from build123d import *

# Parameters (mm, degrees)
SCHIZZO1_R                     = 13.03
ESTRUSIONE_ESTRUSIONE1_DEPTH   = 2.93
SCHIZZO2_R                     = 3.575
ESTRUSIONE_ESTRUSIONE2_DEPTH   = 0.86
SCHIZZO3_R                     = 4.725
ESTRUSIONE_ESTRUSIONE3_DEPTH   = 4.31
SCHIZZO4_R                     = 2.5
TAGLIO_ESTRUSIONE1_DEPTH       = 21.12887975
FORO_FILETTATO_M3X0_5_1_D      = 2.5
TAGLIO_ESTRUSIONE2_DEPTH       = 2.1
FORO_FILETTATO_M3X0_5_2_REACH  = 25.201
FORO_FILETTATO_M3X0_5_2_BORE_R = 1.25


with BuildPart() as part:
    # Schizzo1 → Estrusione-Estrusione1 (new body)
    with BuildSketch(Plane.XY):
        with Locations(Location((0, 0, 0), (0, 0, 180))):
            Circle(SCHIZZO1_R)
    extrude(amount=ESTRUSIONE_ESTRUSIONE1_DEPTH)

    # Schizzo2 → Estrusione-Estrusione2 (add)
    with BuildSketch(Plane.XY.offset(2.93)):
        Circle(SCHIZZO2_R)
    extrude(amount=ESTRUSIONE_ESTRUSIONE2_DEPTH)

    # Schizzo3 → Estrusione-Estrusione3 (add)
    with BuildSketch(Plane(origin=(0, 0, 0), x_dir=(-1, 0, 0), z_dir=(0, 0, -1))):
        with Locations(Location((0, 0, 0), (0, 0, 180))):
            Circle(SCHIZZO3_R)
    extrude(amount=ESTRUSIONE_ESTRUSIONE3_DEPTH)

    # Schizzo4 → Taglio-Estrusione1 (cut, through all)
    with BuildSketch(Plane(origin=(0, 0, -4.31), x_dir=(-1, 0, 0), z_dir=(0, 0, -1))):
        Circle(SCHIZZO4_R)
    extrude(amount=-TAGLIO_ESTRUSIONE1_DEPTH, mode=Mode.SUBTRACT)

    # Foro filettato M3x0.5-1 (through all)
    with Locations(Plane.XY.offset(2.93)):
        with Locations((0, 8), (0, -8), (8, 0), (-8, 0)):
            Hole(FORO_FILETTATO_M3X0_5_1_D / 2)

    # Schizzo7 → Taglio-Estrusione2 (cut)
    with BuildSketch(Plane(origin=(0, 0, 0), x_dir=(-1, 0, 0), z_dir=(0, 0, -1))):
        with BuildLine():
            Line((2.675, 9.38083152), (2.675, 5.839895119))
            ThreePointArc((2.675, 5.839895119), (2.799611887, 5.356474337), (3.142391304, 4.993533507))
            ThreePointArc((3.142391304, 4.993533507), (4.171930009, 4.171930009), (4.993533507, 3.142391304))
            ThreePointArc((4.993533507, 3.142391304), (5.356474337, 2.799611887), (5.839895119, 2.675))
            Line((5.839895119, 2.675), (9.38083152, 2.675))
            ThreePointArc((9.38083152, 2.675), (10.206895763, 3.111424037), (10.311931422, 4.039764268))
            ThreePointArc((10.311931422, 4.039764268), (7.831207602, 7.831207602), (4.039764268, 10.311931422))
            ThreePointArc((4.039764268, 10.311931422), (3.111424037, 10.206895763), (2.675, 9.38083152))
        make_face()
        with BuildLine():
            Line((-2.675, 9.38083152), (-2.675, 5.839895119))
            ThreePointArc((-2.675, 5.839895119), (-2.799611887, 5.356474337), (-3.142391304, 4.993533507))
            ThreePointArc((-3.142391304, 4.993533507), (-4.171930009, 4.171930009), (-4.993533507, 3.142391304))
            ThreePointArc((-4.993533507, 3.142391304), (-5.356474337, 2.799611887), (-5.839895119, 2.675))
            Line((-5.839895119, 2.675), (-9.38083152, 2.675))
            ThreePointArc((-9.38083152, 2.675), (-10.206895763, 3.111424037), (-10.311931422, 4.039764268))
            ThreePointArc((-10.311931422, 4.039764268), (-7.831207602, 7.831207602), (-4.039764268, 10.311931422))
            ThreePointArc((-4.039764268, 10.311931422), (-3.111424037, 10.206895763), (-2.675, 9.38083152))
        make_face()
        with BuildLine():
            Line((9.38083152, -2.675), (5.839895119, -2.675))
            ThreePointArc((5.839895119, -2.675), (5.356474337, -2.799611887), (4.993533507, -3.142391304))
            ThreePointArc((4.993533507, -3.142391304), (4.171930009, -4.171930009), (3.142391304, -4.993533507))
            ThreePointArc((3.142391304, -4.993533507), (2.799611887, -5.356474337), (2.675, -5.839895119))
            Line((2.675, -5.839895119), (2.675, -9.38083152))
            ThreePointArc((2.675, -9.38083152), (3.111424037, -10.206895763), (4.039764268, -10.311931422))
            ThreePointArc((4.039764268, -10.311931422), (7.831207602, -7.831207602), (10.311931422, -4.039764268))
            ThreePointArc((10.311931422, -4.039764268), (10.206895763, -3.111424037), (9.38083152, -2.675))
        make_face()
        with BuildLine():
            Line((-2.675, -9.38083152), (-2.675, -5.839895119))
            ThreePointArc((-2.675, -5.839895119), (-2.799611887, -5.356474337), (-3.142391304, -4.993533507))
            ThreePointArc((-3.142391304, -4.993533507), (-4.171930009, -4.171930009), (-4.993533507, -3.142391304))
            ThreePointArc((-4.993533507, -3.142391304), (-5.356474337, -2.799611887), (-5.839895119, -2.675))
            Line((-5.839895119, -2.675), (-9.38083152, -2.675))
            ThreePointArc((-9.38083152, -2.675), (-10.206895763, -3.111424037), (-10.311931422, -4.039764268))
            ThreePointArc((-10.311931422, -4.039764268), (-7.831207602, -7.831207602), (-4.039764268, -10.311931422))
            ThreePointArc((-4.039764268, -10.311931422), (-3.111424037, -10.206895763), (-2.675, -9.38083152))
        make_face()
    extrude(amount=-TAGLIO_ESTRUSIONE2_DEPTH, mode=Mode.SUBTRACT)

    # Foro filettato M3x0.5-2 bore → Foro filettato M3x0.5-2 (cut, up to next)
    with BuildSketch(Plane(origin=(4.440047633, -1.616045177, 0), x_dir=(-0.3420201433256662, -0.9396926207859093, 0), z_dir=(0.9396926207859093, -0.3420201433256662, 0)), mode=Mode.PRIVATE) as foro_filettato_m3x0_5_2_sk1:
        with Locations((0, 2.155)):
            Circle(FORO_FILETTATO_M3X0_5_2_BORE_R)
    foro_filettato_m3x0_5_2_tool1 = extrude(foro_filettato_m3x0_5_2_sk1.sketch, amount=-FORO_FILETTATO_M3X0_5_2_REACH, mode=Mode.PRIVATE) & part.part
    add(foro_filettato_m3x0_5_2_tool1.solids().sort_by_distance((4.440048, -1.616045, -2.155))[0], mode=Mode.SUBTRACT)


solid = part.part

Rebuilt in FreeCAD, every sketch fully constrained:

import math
import FreeCAD as App
import Part
import Sketcher

V = App.Vector
Q = App.Units.Quantity

doc = App.newDocument("Part")
body = doc.addObject("PartDesign::Body", "Body")

# Sketch on XY plane
sketch1 = doc.addObject("Sketcher::SketchObject", "Sketch")
body.addObject(sketch1)
sketch1.AttachmentSupport = (doc.XY_Plane, [""])
sketch1.MapMode = "FlatFace"
sketch1.addGeometry(Part.Circle(V(0, 0, 0), V(0, 0, 1), 13.03), False)
sketch1.addConstraint([
    Sketcher.Constraint("Coincident", 0, 3, -1, 1),
    Sketcher.Constraint("Diameter", 0, Q("26.06 mm")),
])
pad1 = doc.addObject("PartDesign::Pad", "Pad")
body.addObject(pad1)
pad1.Profile = sketch1
pad1.Length = 2.93

# Sketch on XY plane
sketch2 = doc.addObject("Sketcher::SketchObject", "Sketch001")
body.addObject(sketch2)
sketch2.AttachmentSupport = (doc.XY_Plane, [""])
sketch2.MapMode = "FlatFace"
sketch2.AttachmentOffset = App.Placement(V(0, 0, 2.93), App.Rotation())
sketch2.addGeometry(Part.Circle(V(0, 0, 0), V(0, 0, 1), 3.575), False)
sketch2.addConstraint([
    Sketcher.Constraint("Coincident", 0, 3, -1, 1),
    Sketcher.Constraint("Diameter", 0, Q("7.15 mm")),
])
pad2 = doc.addObject("PartDesign::Pad", "Pad001")
body.addObject(pad2)
pad2.Profile = sketch2
pad2.Length = 0.86

# Sketch on XY plane
sketch3 = doc.addObject("Sketcher::SketchObject", "Sketch002")
body.addObject(sketch3)
sketch3.AttachmentSupport = (doc.XY_Plane, [""])
sketch3.MapMode = "FlatFace"
sketch3.addGeometry(Part.Circle(V(0, 0, 0), V(0, 0, 1), 4.725), False)
sketch3.addConstraint([
    Sketcher.Constraint("Coincident", 0, 3, -1, 1),
    Sketcher.Constraint("Diameter", 0, Q("9.45 mm")),
])
pad3 = doc.addObject("PartDesign::Pad", "Pad002")
body.addObject(pad3)
pad3.Profile = sketch3
pad3.Length = 4.31
pad3.Reversed = True

# Sketch on XY plane
sketch4 = doc.addObject("Sketcher::SketchObject", "Sketch003")
body.addObject(sketch4)
sketch4.AttachmentSupport = (doc.XY_Plane, [""])
sketch4.MapMode = "FlatFace"
sketch4.AttachmentOffset = App.Placement(V(0, 0, -4.31), App.Rotation())
sketch4.addGeometry(Part.Circle(V(0, 0, 0), V(0, 0, 1), 2.5), False)
sketch4.addConstraint([
    Sketcher.Constraint("Coincident", 0, 3, -1, 1),
    Sketcher.Constraint("Diameter", 0, Q("5 mm")),
])
pocket1 = doc.addObject("PartDesign::Pocket", "Pocket")
body.addObject(pocket1)
pocket1.Profile = sketch4
pocket1.Type = "ThroughAll"
pocket1.Reversed = True

# Sketch on XY plane
sketch5 = doc.addObject("Sketcher::SketchObject", "Sketch004")
body.addObject(sketch5)
sketch5.AttachmentSupport = (doc.XY_Plane, [""])
sketch5.MapMode = "FlatFace"
sketch5.AttachmentOffset = App.Placement(V(0, 0, 2.93), App.Rotation())
sketch5.addGeometry([
    Part.Circle(V(0, 8, 0), V(0, 0, 1), 1.25),
    Part.Circle(V(0, -8, 0), V(0, 0, 1), 1.25),
    Part.Circle(V(8, 0, 0), V(0, 0, 1), 1.25),
    Part.Circle(V(-8, 0, 0), V(0, 0, 1), 1.25),
], False)
sketch5.addConstraint([
    Sketcher.Constraint("Equal", 0, 1),
    Sketcher.Constraint("Equal", 1, 2),
    Sketcher.Constraint("Equal", 2, 3),
    Sketcher.Constraint("Symmetric", 0, 3, 1, 3, -1, 1),
    Sketcher.Constraint("Symmetric", 2, 3, 3, 3, -1, 1),
    Sketcher.Constraint("PointOnObject", 0, 3, -2),
    Sketcher.Constraint("PointOnObject", 2, 3, -1),
    Sketcher.Constraint("Diameter", 0, Q("2.5 mm")),
    Sketcher.Constraint("DistanceY", -1, 1, 0, 3, Q("8 mm")),
    Sketcher.Constraint("DistanceX", -1, 1, 2, 3, Q("8 mm")),
])
doc.recompute()
hole = doc.addObject("PartDesign::Hole", "Hole")
body.addObject(hole)
hole.Profile = sketch5
hole.ThreadType = "None"
hole.Diameter = 2.5
hole.DepthType = "ThroughAll"

# Sketch on XY plane
sketch6 = doc.addObject("Sketcher::SketchObject", "Sketch005")
body.addObject(sketch6)
sketch6.AttachmentSupport = (doc.XY_Plane, [""])
sketch6.MapMode = "FlatFace"
sketch6.addGeometry([
    Part.LineSegment(V(-2.675, 9.380832, 0), V(-2.675, 5.839895, 0)),  # 0
    Part.ArcOfCircle(Part.Circle(V(-3.675, 5.839895, 0), V(0, 0, 1), 1), math.radians(-57.818116), math.radians(0)),  # 1
    Part.ArcOfCircle(Part.Circle(V(0, 0, 0), V(0, 0, 1), 5.9), math.radians(122.181884), math.radians(147.818116)),  # 2
    Part.ArcOfCircle(Part.Circle(V(-5.839895, 3.675, 0), V(0, 0, 1), 1), math.radians(-90), math.radians(-32.181884)),  # 3
    Part.LineSegment(V(-5.839895, 2.675, 0), V(-9.380832, 2.675, 0)),  # 4
    Part.ArcOfCircle(Part.Circle(V(-9.380832, 3.675, 0), V(0, 0, 1), 1), math.radians(158.606924), math.radians(270)),  # 5
    Part.ArcOfCircle(Part.Circle(V(0, 0, 0), V(0, 0, 1), 11.075), math.radians(111.393076), math.radians(158.606924)),  # 6
    Part.ArcOfCircle(Part.Circle(V(-3.675, 9.380832, 0), V(0, 0, 1), 1), math.radians(0), math.radians(111.393076)),  # 7
    Part.LineSegment(V(2.675, 5.839895, 0), V(2.675, 9.380832, 0)),  # 8
    Part.ArcOfCircle(Part.Circle(V(3.675, 9.380832, 0), V(0, 0, 1), 1), math.radians(68.606924), math.radians(180)),  # 9
    Part.ArcOfCircle(Part.Circle(V(0, 0, 0), V(0, 0, 1), 11.075), math.radians(21.393076), math.radians(68.606924)),  # 10
    Part.ArcOfCircle(Part.Circle(V(9.380832, 3.675, 0), V(0, 0, 1), 1), math.radians(-90), math.radians(21.393076)),  # 11
    Part.LineSegment(V(9.380832, 2.675, 0), V(5.839895, 2.675, 0)),  # 12
    Part.ArcOfCircle(Part.Circle(V(5.839895, 3.675, 0), V(0, 0, 1), 1), math.radians(-147.818116), math.radians(-90)),  # 13
    Part.ArcOfCircle(Part.Circle(V(0, 0, 0), V(0, 0, 1), 5.9), math.radians(32.181884), math.radians(57.818116)),  # 14
    Part.ArcOfCircle(Part.Circle(V(3.675, 5.839895, 0), V(0, 0, 1), 1), math.radians(180), math.radians(237.818116)),  # 15
    Part.LineSegment(V(-9.380832, -2.675, 0), V(-5.839895, -2.675, 0)),  # 16
    Part.ArcOfCircle(Part.Circle(V(-5.839895, -3.675, 0), V(0, 0, 1), 1), math.radians(32.181884), math.radians(90)),  # 17
    Part.ArcOfCircle(Part.Circle(V(0, 0, 0), V(0, 0, 1), 5.9), math.radians(-147.818116), math.radians(-122.181884)),  # 18
    Part.ArcOfCircle(Part.Circle(V(-3.675, -5.839895, 0), V(0, 0, 1), 1), math.radians(0), math.radians(57.818116)),  # 19
    Part.LineSegment(V(-2.675, -5.839895, 0), V(-2.675, -9.380832, 0)),  # 20
    Part.ArcOfCircle(Part.Circle(V(-3.675, -9.380832, 0), V(0, 0, 1), 1), math.radians(-111.393076), math.radians(0)),  # 21
    Part.ArcOfCircle(Part.Circle(V(0, 0, 0), V(0, 0, 1), 11.075), math.radians(-158.606924), math.radians(-111.393076)),  # 22
    Part.ArcOfCircle(Part.Circle(V(-9.380832, -3.675, 0), V(0, 0, 1), 1), math.radians(90), math.radians(201.393076)),  # 23
    Part.LineSegment(V(2.675, -9.380832, 0), V(2.675, -5.839895, 0)),  # 24
    Part.ArcOfCircle(Part.Circle(V(3.675, -5.839895, 0), V(0, 0, 1), 1), math.radians(122.181884), math.radians(180)),  # 25
    Part.ArcOfCircle(Part.Circle(V(0, 0, 0), V(0, 0, 1), 5.9), math.radians(-57.818116), math.radians(-32.181884)),  # 26
    Part.ArcOfCircle(Part.Circle(V(5.839895, -3.675, 0), V(0, 0, 1), 1), math.radians(90), math.radians(147.818116)),  # 27
    Part.LineSegment(V(5.839895, -2.675, 0), V(9.380832, -2.675, 0)),  # 28
    Part.ArcOfCircle(Part.Circle(V(9.380832, -3.675, 0), V(0, 0, 1), 1), math.radians(-21.393076), math.radians(90)),  # 29
    Part.ArcOfCircle(Part.Circle(V(0, 0, 0), V(0, 0, 1), 11.075), math.radians(-68.606924), math.radians(-21.393076)),  # 30
    Part.ArcOfCircle(Part.Circle(V(3.675, -9.380832, 0), V(0, 0, 1), 1), math.radians(180), math.radians(291.393076)),  # 31
], False)
sketch6.addConstraint([
    Sketcher.Constraint("Tangent", 0, 2, 1, 2),
    Sketcher.Constraint("Tangent", 1, 1, 2, 1),
    Sketcher.Constraint("Tangent", 2, 2, 3, 2),
    Sketcher.Constraint("Tangent", 3, 1, 4, 1),
    Sketcher.Constraint("Tangent", 4, 2, 5, 2),
    Sketcher.Constraint("Tangent", 5, 1, 6, 2),
    Sketcher.Constraint("Tangent", 6, 1, 7, 2),
    Sketcher.Constraint("Tangent", 7, 1, 0, 1),
    Sketcher.Constraint("Tangent", 8, 2, 9, 2),
    Sketcher.Constraint("Tangent", 9, 1, 10, 2),
    Sketcher.Constraint("Tangent", 10, 1, 11, 2),
    Sketcher.Constraint("Tangent", 11, 1, 12, 1),
    Sketcher.Constraint("Tangent", 12, 2, 13, 2),
    Sketcher.Constraint("Tangent", 13, 1, 14, 1),
    Sketcher.Constraint("Tangent", 14, 2, 15, 2),
    Sketcher.Constraint("Tangent", 15, 1, 8, 1),
    Sketcher.Constraint("Tangent", 16, 2, 17, 2),
    Sketcher.Constraint("Tangent", 17, 1, 18, 1),
    Sketcher.Constraint("Tangent", 18, 2, 19, 2),
    Sketcher.Constraint("Tangent", 19, 1, 20, 1),
    Sketcher.Constraint("Tangent", 20, 2, 21, 2),
    Sketcher.Constraint("Tangent", 21, 1, 22, 2),
    Sketcher.Constraint("Tangent", 22, 1, 23, 2),
    Sketcher.Constraint("Tangent", 23, 1, 16, 1),
    Sketcher.Constraint("Tangent", 24, 2, 25, 2),
    Sketcher.Constraint("Tangent", 25, 1, 26, 1),
    Sketcher.Constraint("Tangent", 26, 2, 27, 2),
    Sketcher.Constraint("Tangent", 27, 1, 28, 1),
    Sketcher.Constraint("Tangent", 28, 2, 29, 2),
    Sketcher.Constraint("Tangent", 29, 1, 30, 2),
    Sketcher.Constraint("Tangent", 30, 1, 31, 2),
    Sketcher.Constraint("Tangent", 31, 1, 24, 1),
    Sketcher.Constraint("Vertical", 0),
    Sketcher.Constraint("Horizontal", 4),
    Sketcher.Constraint("Vertical", 8),
    Sketcher.Constraint("Horizontal", 12),
    Sketcher.Constraint("Horizontal", 16),
    Sketcher.Constraint("Vertical", 20),
    Sketcher.Constraint("Vertical", 24),
    Sketcher.Constraint("Horizontal", 28),
    Sketcher.Constraint("Coincident", 2, 3, -1, 1),
    Sketcher.Constraint("Coincident", 6, 3, -1, 1),
    Sketcher.Constraint("Coincident", 10, 3, -1, 1),
    Sketcher.Constraint("Coincident", 14, 3, -1, 1),
    Sketcher.Constraint("Coincident", 18, 3, -1, 1),
    Sketcher.Constraint("Coincident", 22, 3, -1, 1),
    Sketcher.Constraint("Coincident", 26, 3, -1, 1),
    Sketcher.Constraint("Coincident", 30, 3, -1, 1),
    Sketcher.Constraint("Equal", 1, 3),
    Sketcher.Constraint("Equal", 3, 5),
    Sketcher.Constraint("Equal", 5, 7),
    Sketcher.Constraint("Equal", 7, 9),
    Sketcher.Constraint("Equal", 6, 10),
    Sketcher.Constraint("Equal", 9, 11),
    Sketcher.Constraint("Equal", 11, 13),
    Sketcher.Constraint("Equal", 2, 14),
    Sketcher.Constraint("Equal", 13, 15),
    Sketcher.Constraint("Equal", 15, 17),
    Sketcher.Constraint("Equal", 14, 18),
    Sketcher.Constraint("Equal", 17, 19),
    Sketcher.Constraint("Equal", 19, 21),
    Sketcher.Constraint("Equal", 10, 22),
    Sketcher.Constraint("Equal", 21, 23),
    Sketcher.Constraint("Equal", 23, 25),
    Sketcher.Constraint("Equal", 18, 26),
    Sketcher.Constraint("Equal", 25, 27),
    Sketcher.Constraint("Equal", 27, 29),
    Sketcher.Constraint("Equal", 22, 30),
    Sketcher.Constraint("Equal", 29, 31),
    Sketcher.Constraint("Horizontal", 7, 3, 9, 3),
    Sketcher.Constraint("Horizontal", 5, 3, 11, 3),
    Sketcher.Constraint("Horizontal", 19, 3, 25, 3),
    Sketcher.Constraint("Horizontal", 23, 3, 27, 3),
    Sketcher.Constraint("Vertical", 3, 3, 17, 3),
    Sketcher.Constraint("Vertical", 7, 3, 19, 3),
    Sketcher.Constraint("Equal", 28, 0),
    Sketcher.Constraint("Radius", 1, Q("1 mm")),
    Sketcher.Constraint("Radius", 2, Q("5.9 mm")),
    Sketcher.Constraint("Radius", 6, Q("11.075 mm")),
    Sketcher.Constraint("DistanceX", 7, 3, 9, 3, Q("7.35 mm")),
])
pocket2 = doc.addObject("PartDesign::Pocket", "Pocket001")
body.addObject(pocket2)
pocket2.Profile = sketch6
pocket2.Length = 2.1
pocket2.Reversed = True

# Sketch on an angled plane
sketch7 = doc.addObject("Sketcher::SketchObject", "Sketch006")
body.addObject(sketch7)
sketch7.Placement = App.Placement(V(4.440048, -1.616045, 0), App.Rotation(V(-0.342020143, -0.939692621, 0), V(0, 0, -1), V(0.939692621, -0.342020143, 0), "ZXY"))
sketch7.addGeometry(Part.Circle(V(0, 2.155, 0), V(0, 0, 1), 1.25), False)
sketch7.addConstraint([
    Sketcher.Constraint("PointOnObject", 0, 3, -2),
    Sketcher.Constraint("Diameter", 0, Q("2.5 mm")),
    Sketcher.Constraint("DistanceY", -1, 1, 0, 3, Q("2.155 mm")),
])
pocket3 = doc.addObject("PartDesign::Pocket", "Pocket002")
body.addObject(pocket3)
pocket3.Profile = sketch7
pocket3.Length = 2.559936

doc.recompute()
